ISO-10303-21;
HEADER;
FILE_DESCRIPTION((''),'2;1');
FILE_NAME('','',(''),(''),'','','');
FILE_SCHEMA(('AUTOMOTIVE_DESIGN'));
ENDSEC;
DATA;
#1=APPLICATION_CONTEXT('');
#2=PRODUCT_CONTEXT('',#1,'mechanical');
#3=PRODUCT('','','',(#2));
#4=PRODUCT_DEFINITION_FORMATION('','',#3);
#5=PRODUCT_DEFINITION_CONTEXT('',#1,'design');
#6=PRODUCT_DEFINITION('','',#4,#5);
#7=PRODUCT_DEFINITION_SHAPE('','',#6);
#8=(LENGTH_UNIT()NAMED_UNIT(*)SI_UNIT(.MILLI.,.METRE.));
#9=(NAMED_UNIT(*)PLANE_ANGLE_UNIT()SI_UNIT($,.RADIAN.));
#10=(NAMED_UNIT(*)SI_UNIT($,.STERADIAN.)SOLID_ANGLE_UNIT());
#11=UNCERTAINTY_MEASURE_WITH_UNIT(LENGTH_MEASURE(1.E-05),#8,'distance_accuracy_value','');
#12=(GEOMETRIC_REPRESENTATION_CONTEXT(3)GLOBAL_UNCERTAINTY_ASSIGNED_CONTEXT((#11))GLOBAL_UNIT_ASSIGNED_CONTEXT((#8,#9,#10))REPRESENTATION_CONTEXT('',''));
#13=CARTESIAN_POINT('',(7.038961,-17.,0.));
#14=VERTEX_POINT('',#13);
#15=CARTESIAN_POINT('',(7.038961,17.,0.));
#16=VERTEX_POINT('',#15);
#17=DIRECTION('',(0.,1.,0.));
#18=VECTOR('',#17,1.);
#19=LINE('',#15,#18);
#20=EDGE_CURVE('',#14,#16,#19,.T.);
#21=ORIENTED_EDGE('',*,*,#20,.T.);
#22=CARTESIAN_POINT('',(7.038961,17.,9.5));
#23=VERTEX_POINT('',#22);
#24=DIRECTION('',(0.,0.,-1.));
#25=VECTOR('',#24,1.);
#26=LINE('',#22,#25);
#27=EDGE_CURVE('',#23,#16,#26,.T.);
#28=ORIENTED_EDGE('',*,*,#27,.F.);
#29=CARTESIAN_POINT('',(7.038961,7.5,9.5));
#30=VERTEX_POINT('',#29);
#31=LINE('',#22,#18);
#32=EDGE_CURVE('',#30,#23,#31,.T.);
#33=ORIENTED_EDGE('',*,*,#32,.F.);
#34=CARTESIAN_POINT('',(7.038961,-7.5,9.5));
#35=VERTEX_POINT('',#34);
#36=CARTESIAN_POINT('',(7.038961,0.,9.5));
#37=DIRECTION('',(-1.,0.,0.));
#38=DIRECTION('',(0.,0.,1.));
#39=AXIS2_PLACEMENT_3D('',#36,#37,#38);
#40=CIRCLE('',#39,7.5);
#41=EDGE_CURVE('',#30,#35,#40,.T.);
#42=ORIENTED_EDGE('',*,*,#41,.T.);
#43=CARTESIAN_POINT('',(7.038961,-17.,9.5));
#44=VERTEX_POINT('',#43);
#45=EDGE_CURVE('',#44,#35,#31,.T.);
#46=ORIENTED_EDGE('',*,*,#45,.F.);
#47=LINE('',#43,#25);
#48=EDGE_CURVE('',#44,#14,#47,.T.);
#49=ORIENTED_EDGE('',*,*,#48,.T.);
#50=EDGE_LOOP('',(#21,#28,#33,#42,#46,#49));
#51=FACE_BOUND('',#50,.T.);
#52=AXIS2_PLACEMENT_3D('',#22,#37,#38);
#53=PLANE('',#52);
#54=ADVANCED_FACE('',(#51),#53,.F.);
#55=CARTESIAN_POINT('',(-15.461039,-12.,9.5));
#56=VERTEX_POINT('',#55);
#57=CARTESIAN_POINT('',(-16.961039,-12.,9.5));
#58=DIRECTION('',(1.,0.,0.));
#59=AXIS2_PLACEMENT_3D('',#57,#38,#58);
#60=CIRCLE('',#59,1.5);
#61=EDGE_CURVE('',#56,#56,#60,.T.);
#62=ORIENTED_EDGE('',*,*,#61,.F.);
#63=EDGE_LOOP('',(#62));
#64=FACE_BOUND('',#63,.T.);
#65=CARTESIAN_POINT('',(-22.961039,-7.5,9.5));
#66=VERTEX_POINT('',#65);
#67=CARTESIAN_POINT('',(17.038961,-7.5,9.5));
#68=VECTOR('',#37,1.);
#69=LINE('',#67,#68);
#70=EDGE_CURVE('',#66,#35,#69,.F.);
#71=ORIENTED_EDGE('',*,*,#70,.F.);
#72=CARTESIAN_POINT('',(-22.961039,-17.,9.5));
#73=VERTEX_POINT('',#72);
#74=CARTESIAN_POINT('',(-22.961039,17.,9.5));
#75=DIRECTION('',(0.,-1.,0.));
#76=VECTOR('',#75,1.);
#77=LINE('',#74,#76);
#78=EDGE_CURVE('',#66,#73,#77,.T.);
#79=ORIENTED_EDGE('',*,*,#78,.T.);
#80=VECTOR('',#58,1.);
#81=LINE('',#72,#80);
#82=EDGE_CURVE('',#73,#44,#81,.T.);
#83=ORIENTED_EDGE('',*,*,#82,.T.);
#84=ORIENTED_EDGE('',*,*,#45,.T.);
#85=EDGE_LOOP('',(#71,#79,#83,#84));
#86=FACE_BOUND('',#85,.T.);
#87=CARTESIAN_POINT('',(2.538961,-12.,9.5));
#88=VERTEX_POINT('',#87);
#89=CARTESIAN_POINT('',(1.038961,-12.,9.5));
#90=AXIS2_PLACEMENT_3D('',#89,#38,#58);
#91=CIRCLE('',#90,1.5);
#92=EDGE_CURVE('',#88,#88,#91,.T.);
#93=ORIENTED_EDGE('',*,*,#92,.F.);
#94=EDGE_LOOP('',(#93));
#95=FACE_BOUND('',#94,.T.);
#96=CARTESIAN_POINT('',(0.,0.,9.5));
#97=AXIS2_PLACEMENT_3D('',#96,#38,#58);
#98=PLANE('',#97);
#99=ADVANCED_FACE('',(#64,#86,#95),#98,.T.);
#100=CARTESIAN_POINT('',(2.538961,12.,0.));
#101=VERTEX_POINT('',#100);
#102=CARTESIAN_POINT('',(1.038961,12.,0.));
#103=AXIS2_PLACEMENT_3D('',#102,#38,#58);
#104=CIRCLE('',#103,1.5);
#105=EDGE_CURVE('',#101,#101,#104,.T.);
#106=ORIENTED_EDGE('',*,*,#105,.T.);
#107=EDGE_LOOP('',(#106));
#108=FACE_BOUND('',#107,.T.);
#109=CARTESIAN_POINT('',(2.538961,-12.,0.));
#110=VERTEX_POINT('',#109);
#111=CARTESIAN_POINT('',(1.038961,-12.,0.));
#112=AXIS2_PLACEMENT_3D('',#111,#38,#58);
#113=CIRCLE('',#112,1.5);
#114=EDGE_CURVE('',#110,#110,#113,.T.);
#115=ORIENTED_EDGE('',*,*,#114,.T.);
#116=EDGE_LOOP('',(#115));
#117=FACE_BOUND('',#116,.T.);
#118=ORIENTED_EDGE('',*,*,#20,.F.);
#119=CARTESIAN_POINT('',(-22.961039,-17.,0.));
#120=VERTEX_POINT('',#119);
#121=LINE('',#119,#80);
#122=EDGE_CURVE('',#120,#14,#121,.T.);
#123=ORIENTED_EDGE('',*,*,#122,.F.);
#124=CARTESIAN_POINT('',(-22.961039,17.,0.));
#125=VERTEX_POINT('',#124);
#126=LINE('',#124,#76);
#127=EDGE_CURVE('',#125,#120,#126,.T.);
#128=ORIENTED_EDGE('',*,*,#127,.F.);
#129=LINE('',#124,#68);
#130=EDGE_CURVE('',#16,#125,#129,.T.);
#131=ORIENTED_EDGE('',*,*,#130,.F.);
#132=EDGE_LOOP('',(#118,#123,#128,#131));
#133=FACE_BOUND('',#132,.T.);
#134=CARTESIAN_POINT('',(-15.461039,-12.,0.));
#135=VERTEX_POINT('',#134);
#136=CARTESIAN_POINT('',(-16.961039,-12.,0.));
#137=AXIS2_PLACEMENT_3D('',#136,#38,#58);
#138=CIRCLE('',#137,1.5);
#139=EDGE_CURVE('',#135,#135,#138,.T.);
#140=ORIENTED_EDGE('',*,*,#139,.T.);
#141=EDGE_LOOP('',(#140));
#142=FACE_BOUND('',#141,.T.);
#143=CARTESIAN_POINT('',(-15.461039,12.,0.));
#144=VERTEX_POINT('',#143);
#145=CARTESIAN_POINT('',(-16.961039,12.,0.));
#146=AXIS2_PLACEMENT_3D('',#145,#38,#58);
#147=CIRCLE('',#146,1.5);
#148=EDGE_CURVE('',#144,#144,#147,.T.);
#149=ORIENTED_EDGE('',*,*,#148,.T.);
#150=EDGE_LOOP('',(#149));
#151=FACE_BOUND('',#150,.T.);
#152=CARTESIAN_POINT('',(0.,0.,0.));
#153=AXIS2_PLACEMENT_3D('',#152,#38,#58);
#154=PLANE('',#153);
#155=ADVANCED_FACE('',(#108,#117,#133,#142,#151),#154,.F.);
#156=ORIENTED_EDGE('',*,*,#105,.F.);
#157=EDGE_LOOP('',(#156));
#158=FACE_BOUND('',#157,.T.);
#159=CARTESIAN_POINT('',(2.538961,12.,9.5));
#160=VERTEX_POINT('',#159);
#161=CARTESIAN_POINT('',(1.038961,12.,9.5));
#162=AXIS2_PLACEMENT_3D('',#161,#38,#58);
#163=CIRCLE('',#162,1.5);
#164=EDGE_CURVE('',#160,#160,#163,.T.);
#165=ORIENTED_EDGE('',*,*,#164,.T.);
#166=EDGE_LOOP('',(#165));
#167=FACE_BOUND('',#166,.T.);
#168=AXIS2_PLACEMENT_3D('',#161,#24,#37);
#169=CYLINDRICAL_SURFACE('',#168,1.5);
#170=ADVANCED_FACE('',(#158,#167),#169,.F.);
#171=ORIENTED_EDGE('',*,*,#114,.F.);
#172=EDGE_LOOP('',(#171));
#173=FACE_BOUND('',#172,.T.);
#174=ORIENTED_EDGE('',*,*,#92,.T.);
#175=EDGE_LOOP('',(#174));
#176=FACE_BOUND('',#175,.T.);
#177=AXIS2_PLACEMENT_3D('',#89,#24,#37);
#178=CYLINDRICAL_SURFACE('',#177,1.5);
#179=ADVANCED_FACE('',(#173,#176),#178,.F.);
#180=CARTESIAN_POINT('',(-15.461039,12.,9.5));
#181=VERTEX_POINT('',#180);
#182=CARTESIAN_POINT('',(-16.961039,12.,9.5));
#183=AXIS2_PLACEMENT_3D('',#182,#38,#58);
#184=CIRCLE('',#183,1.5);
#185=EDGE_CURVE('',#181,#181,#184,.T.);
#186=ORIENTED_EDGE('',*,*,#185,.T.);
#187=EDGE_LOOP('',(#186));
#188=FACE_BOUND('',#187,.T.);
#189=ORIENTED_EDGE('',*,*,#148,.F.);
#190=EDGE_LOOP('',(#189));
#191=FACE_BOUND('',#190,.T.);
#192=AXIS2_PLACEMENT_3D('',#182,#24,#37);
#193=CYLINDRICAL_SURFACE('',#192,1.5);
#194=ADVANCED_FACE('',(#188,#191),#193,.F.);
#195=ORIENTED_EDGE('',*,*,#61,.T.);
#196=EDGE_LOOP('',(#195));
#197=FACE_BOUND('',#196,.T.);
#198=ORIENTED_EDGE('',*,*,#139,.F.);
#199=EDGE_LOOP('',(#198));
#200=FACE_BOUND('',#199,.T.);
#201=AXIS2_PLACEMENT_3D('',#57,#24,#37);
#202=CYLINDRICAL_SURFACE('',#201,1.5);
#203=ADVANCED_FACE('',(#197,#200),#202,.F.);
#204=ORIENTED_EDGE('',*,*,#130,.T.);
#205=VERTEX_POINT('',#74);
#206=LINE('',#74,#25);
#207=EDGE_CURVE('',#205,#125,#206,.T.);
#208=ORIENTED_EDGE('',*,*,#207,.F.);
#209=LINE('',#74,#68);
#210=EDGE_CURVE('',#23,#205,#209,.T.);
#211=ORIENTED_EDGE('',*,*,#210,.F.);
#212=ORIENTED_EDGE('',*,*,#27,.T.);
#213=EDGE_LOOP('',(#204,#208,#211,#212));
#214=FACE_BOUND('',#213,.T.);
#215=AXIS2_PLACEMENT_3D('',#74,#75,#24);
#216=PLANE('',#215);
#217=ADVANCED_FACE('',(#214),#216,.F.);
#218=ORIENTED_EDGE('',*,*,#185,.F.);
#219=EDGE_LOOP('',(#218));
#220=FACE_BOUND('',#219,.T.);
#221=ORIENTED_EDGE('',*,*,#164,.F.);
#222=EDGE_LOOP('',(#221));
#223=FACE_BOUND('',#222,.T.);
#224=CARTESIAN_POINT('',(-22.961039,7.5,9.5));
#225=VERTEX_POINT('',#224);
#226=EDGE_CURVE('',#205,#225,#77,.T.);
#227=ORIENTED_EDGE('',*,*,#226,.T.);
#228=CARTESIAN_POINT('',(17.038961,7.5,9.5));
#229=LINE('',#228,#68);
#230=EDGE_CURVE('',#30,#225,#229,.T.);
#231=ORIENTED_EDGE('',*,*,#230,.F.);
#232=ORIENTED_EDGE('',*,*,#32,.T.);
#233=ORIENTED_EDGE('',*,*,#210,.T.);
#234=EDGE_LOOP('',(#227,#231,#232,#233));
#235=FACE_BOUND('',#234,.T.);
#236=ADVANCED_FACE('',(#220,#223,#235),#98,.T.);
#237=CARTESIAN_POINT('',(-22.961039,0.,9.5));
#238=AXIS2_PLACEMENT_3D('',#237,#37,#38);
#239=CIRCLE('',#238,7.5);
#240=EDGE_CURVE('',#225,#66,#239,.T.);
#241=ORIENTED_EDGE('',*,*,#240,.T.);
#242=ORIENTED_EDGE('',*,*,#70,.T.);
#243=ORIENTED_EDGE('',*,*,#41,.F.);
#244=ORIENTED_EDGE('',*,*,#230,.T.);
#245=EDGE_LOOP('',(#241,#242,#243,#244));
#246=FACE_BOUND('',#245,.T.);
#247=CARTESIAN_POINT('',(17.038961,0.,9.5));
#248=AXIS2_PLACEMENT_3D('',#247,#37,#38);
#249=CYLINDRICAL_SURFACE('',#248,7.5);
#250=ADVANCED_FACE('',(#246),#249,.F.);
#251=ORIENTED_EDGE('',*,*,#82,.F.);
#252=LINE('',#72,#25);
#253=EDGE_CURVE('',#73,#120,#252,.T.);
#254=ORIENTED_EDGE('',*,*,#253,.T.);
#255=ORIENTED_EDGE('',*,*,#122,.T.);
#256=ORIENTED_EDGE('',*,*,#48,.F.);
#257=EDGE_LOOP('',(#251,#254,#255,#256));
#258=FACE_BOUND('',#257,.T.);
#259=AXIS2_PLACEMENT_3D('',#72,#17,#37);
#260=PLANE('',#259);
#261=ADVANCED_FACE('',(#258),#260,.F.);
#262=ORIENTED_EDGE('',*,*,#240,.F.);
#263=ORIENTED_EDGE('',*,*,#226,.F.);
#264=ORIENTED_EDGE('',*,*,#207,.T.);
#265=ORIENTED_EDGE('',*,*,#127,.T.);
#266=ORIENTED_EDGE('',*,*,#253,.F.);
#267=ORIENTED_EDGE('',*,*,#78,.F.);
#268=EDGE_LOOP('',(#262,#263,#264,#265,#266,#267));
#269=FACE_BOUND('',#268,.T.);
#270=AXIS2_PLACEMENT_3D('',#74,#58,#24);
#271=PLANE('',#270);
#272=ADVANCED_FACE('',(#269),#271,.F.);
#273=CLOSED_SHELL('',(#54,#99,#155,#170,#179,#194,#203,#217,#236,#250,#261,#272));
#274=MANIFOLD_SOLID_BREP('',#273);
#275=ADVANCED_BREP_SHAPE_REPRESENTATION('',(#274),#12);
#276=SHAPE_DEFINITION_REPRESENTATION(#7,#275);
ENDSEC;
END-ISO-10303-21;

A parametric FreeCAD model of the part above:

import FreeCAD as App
import Part
import Sketcher

V = App.Vector
Q = App.Units.Quantity


def add_polygon(sketch, points):
    """Adds a closed chain of lines whose ends are joined by coincident constraints."""
    first, n = sketch.GeometryCount, len(points)
    for a, b in zip(points, points[1:] + points[:1]):
        sketch.addGeometry(Part.LineSegment(App.Vector(*a, 0), App.Vector(*b, 0)), False)
    for i in range(n):
        sketch.addConstraint(Sketcher.Constraint("Coincident", first + i, 2, first + (i + 1) % n, 1))

doc = App.newDocument("Part")
body = doc.addObject("PartDesign::Body", "Body")

sketch1 = body.newObject("Sketcher::SketchObject", "Sketch")
sketch1.AttachmentSupport = (doc.getObject("XY_Plane"), [""])
sketch1.MapMode = "FlatFace"
add_polygon(sketch1, [(-23, 17), (-23, -17), (7, -17), (7, 17)])
sketch1.addGeometry(Part.Circle(V(-17, -12, 0), V(0, 0, 1), 1.5), False)
sketch1.addGeometry(Part.Circle(V(1, -12, 0), V(0, 0, 1), 1.5), False)
sketch1.addGeometry(Part.Circle(V(-17, 12, 0), V(0, 0, 1), 1.5), False)
sketch1.addGeometry(Part.Circle(V(1, 12, 0), V(0, 0, 1), 1.5), False)
sketch1.addConstraint([
    Sketcher.Constraint("Vertical", 0),
    Sketcher.Constraint("Horizontal", 1),
    Sketcher.Constraint("Vertical", 2),
    Sketcher.Constraint("Horizontal", 3),
    Sketcher.Constraint("Equal", 4, 5),
    Sketcher.Constraint("Equal", 5, 6),
    Sketcher.Constraint("Equal", 6, 7),
    Sketcher.Constraint("Symmetric", 4, 3, 6, 3, -1),
    Sketcher.Constraint("Symmetric", 5, 3, 7, 3, -1),
    Sketcher.Constraint("Horizontal", 4, 3, 5, 3),
    Sketcher.Constraint("Diameter", 4, Q("3 mm")),
    Sketcher.Constraint("DistanceX", 1, 1, 1, 2, Q("30 mm")),
    Sketcher.Constraint("DistanceY", 0, 2, 0, 1, Q("34 mm")),
    Sketcher.Constraint("DistanceY", 4, 3, -1, 1, Q("12 mm")),
    Sketcher.Constraint("DistanceY", 0, 2, -1, 1, Q("17 mm")),
    Sketcher.Constraint("DistanceX", 4, 3, 5, 3, Q("18 mm")),
    Sketcher.Constraint("DistanceX", 0, 2, 4, 3, Q("6 mm")),
    Sketcher.Constraint("DistanceX", 4, 3, -1, 1, Q("16.961039 mm")),
])
pad1 = body.newObject("PartDesign::Pad", "Pad")
pad1.Profile = sketch1
pad1.Length = 9.5

sketch2 = body.newObject("Sketcher::SketchObject", "Sketch001")
sketch2.AttachmentSupport = (doc.getObject("YZ_Plane"), [""])
sketch2.MapMode = "FlatFace"
sketch2.AttachmentOffset = App.Placement(V(0, 0, -22.961039), App.Rotation())
sketch2.addGeometry(Part.Circle(V(0, 10, 0), V(0, 0, 1), 8), False)
sketch2.addConstraint([
    Sketcher.Constraint("PointOnObject", 0, 3, -2),
    Sketcher.Constraint("Diameter", 0, Q("15 mm")),
    Sketcher.Constraint("DistanceY", -1, 1, 0, 3, Q("9.5 mm")),
])
pocket1 = body.newObject("PartDesign::Pocket", "Pocket")
pocket1.Profile = sketch2
pocket1.Length = 40
pocket1.Reversed = True

doc.recompute()
